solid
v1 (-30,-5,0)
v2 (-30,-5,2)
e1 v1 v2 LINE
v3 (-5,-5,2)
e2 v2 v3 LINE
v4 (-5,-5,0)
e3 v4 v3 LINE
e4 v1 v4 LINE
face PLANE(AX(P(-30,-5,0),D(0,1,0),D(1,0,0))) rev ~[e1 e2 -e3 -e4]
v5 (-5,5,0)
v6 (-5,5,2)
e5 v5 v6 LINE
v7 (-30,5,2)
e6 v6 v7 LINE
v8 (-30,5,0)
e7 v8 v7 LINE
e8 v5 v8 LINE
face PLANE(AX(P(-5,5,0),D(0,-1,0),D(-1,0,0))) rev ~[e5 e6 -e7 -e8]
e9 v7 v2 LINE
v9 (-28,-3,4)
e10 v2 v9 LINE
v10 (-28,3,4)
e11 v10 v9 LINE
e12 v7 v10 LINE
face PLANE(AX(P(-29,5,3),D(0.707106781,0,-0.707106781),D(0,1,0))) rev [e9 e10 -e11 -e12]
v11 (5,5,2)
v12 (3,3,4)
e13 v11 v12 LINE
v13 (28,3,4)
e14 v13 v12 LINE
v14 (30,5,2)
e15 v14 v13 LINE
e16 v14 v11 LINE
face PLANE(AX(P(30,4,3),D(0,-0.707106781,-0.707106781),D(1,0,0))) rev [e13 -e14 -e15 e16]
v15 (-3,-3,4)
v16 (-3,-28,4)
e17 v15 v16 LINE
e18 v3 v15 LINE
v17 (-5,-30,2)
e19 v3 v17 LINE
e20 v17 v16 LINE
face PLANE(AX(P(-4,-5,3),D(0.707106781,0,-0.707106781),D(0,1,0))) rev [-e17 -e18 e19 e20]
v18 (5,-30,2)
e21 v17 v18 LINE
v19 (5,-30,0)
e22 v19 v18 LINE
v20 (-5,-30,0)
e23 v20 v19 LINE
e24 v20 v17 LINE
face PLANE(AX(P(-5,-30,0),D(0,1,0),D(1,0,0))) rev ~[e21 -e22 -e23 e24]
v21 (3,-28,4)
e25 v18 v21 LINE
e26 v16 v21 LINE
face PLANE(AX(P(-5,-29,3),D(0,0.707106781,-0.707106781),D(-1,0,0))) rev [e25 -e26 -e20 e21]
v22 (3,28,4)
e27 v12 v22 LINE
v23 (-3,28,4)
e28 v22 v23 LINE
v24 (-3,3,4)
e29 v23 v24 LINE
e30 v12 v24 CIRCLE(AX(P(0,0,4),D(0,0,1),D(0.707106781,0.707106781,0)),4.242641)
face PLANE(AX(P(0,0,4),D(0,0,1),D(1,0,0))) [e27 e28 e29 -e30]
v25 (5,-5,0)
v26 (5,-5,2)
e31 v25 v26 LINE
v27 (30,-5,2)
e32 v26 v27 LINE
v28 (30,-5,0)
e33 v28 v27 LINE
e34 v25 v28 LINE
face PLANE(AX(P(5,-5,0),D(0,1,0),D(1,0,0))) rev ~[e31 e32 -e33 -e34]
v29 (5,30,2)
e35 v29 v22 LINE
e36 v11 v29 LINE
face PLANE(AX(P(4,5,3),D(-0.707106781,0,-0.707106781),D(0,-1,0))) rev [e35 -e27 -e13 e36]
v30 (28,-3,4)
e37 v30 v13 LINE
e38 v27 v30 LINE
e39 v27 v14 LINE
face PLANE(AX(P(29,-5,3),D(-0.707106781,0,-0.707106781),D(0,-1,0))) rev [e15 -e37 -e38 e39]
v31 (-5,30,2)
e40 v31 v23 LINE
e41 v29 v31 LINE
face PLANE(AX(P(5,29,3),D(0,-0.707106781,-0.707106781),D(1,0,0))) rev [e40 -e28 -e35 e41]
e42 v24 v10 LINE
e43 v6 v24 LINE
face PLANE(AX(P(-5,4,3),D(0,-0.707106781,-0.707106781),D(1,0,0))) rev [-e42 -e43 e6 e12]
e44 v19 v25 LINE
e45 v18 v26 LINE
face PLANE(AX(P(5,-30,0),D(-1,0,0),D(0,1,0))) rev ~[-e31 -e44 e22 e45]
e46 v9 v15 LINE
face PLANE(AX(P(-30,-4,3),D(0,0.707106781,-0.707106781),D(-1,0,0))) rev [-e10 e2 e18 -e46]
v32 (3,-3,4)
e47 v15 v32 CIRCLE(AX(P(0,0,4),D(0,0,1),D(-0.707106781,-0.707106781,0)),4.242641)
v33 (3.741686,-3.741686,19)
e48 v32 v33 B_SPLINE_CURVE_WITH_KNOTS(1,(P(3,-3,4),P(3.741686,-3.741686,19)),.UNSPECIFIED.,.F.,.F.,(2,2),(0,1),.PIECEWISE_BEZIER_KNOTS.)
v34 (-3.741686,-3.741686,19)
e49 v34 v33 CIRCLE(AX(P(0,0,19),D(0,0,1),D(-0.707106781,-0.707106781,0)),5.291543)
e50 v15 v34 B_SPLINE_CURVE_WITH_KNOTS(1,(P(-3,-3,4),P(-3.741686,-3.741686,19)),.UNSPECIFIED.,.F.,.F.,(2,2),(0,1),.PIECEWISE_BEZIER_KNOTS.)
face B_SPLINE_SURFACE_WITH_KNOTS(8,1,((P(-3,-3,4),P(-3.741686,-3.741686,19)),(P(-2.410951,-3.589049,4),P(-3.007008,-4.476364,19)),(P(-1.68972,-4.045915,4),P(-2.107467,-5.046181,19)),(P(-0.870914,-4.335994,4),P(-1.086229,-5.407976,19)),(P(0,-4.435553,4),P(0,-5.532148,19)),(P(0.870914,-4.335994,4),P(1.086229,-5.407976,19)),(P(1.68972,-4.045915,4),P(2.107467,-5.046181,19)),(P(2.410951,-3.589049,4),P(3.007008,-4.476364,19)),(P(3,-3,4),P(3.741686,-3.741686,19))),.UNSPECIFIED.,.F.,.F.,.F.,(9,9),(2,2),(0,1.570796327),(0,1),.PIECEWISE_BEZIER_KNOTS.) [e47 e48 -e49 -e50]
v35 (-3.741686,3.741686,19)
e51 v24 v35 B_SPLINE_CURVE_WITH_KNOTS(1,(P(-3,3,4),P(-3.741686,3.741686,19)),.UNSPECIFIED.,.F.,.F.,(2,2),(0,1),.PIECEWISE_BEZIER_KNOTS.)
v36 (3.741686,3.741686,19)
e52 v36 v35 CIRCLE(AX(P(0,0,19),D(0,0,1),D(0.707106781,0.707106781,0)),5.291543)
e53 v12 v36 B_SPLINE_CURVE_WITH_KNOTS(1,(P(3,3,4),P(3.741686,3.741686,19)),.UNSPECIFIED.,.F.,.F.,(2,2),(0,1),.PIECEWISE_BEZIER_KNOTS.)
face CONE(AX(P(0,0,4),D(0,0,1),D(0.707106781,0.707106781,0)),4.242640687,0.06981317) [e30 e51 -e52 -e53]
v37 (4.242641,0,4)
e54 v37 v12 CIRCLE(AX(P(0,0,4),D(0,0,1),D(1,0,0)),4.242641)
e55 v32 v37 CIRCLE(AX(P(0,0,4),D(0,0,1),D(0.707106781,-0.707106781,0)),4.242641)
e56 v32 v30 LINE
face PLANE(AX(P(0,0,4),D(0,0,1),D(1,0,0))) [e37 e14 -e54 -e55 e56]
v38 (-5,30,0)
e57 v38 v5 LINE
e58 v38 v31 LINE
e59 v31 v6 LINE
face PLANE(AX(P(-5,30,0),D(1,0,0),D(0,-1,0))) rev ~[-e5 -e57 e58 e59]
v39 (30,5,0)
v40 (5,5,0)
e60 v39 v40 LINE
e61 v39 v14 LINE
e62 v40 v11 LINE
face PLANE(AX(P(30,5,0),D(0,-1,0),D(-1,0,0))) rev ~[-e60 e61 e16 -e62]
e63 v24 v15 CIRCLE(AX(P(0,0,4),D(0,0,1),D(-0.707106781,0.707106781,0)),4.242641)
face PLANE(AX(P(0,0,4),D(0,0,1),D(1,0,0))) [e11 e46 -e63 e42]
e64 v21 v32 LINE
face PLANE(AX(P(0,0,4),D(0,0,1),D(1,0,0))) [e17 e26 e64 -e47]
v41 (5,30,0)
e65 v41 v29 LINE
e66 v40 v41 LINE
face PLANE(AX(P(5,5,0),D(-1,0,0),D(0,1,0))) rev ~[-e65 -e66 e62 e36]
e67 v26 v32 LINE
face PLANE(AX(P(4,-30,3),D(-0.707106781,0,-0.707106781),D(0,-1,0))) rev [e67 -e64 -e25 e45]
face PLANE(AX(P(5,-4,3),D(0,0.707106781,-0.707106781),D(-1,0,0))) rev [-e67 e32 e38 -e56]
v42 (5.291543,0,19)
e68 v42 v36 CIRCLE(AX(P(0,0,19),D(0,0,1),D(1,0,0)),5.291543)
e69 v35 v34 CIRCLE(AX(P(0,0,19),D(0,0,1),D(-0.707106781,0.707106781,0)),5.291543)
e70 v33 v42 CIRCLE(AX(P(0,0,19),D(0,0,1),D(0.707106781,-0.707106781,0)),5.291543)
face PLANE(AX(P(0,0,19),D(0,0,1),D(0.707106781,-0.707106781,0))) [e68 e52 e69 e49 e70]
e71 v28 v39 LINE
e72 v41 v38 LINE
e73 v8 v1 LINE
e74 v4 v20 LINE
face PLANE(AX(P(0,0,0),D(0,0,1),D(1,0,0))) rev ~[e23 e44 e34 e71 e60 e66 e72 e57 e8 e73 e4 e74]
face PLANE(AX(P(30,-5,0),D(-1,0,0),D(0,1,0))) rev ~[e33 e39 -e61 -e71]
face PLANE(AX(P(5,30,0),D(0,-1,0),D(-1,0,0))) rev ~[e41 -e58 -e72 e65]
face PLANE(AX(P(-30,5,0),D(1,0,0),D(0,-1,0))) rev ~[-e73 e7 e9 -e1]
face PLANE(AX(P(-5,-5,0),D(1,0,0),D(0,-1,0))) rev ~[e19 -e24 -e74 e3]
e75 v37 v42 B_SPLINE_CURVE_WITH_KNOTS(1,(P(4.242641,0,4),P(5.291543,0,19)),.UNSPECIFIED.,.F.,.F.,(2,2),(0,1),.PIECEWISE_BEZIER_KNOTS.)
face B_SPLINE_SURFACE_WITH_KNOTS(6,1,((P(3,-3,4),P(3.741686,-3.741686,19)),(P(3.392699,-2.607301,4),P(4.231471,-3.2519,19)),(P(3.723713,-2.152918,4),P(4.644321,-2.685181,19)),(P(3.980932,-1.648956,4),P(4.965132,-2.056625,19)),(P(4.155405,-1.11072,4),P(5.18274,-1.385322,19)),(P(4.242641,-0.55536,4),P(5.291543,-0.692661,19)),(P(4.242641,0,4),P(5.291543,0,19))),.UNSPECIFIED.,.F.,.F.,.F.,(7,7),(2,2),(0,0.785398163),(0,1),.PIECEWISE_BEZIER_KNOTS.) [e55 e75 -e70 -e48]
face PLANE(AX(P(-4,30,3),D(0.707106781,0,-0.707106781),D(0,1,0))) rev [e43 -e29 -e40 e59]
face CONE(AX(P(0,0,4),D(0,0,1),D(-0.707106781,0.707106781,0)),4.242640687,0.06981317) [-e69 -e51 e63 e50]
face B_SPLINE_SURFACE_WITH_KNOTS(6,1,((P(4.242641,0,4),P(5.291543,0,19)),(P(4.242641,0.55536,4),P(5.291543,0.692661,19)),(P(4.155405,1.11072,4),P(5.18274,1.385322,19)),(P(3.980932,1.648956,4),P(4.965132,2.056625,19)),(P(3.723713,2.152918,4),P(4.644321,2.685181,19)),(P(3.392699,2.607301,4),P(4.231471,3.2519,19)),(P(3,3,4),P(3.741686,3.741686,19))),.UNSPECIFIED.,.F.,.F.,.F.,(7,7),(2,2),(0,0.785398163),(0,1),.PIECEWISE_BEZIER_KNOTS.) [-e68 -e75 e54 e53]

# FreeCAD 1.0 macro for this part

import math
import FreeCAD as App
import Part
import Sketcher

V = App.Vector
Q = App.Units.Quantity


def edges_at(feature, points):
    """Names of the edges that pass closest to the given points."""
    edges = feature.Shape.Edges
    near = lambda p: min(range(len(edges)), key=lambda i: edges[i].distToShape(Part.Vertex(*p))[0])
    return sorted({f"Edge{near(p) + 1}" for p in points})


def add_polygon(sketch, points):
    """Adds a closed chain of lines whose ends are joined by coincident constraints."""
    first, n = sketch.GeometryCount, len(points)
    for a, b in zip(points, points[1:] + points[:1]):
        sketch.addGeometry(Part.LineSegment(App.Vector(*a, 0), App.Vector(*b, 0)), False)
    for i in range(n):
        sketch.addConstraint(Sketcher.Constraint("Coincident", first + i, 2, first + (i + 1) % n, 1))

doc = App.newDocument("Part")
body = doc.addObject("PartDesign::Body", "Body")

# Sketch on XY plane
sketch1 = doc.addObject("Sketcher::SketchObject", "Sketch")
body.addObject(sketch1)
sketch1.AttachmentSupport = (doc.XY_Plane, [""])
sketch1.MapMode = "FlatFace"
add_polygon(sketch1, [(5, -30), (5, -5), (30, -5), (30, 5), (5, 5), (5, 30), (-5, 30), (-5, 5), (-30, 5), (-30, -5), (-5, -5), (-5, -30)])  # lines 0-11
sketch1.addConstraint([
    Sketcher.Constraint("Vertical", 0),
    Sketcher.Constraint("Horizontal", 1),
    Sketcher.Constraint("Vertical", 2),
    Sketcher.Constraint("Horizontal", 3),
    Sketcher.Constraint("Vertical", 4),
    Sketcher.Constraint("Horizontal", 5),
    Sketcher.Constraint("Vertical", 6),
    Sketcher.Constraint("Horizontal", 7),
    Sketcher.Constraint("Vertical", 8),
    Sketcher.Constraint("Horizontal", 9),
    Sketcher.Constraint("Vertical", 10),
    Sketcher.Constraint("Horizontal", 11),
    Sketcher.Constraint("Symmetric", 0, 2, 6, 2, -1, 1),
    Sketcher.Constraint("Symmetric", 2, 2, 8, 2, -1, 1),
    Sketcher.Constraint("Symmetric", 4, 2, 10, 2, -1, 1),
    Sketcher.Constraint("Symmetric", 3, 2, 6, 2, -2),
    Sketcher.Constraint("Equal", 9, 0),
    Sketcher.Constraint("Equal", 11, 2),
    Sketcher.Constraint("DistanceX", 1, 1, 1, 2, Q("25 mm")),
    Sketcher.Constraint("DistanceX", 5, 2, 5, 1, Q("10 mm")),
])
pad1 = doc.addObject("PartDesign::Pad", "Pad")
body.addObject(pad1)
pad1.Profile = sketch1
pad1.Length = 4
doc.recompute()

chamfer = doc.addObject("PartDesign::Chamfer", "Chamfer")
body.addObject(chamfer)
chamfer.Base = (pad1, edges_at(pad1, [
    (-5, 17.5, 4),
    (0, 30, 4),
    (5, 17.5, 4),
    (-17.5, 5, 4),
    (-17.5, -5, 4),
    (-30, 0, 4),
    (-5, -17.5, 4),
    (0, -30, 4),
    (5, -17.5, 4),
    (17.5, -5, 4),
    (17.5, 5, 4),
    (30, 0, 4),
]))
chamfer.Size = 2

# Sketch on XY plane
sketch2 = doc.addObject("Sketcher::SketchObject", "Sketch001")
body.addObject(sketch2)
sketch2.AttachmentSupport = (doc.XY_Plane, [""])
sketch2.MapMode = "FlatFace"
sketch2.AttachmentOffset = App.Placement(V(0, 0, 4), App.Rotation())
sketch2.addGeometry([
    Part.ArcOfCircle(Part.Circle(V(0, 0, 0), V(0, 0, 1), 4.2), math.radians(-45), math.radians(0)),  # 0
    Part.ArcOfCircle(Part.Circle(V(0, 0, 0), V(0, 0, 1), 4.2), math.radians(0), math.radians(45)),  # 1
    Part.ArcOfCircle(Part.Circle(V(0, 0, 0), V(0, 0, 1), 4.2), math.radians(45), math.radians(135)),  # 2
    Part.ArcOfCircle(Part.Circle(V(0, 0, 0), V(0, 0, 1), 4.2), math.radians(135), math.radians(225)),  # 3
    Part.ArcOfCircle(Part.Circle(V(0, 0, 0), V(0, 0, 1), 4.2), math.radians(-135), math.radians(-45)),  # 4
], False)
sketch2.addConstraint([
    Sketcher.Constraint("Tangent", 0, 2, 1, 1),
    Sketcher.Constraint("Tangent", 1, 2, 2, 1),
    Sketcher.Constraint("Tangent", 2, 2, 3, 1),
    Sketcher.Constraint("Tangent", 3, 2, 4, 1),
    Sketcher.Constraint("Tangent", 4, 2, 0, 1),
    Sketcher.Constraint("Coincident", 0, 3, -1, 1),
    Sketcher.Constraint("Coincident", 2, 3, -1, 1),
    Sketcher.Constraint("PointOnObject", 0, 2, -1),
    Sketcher.Constraint("Horizontal", 1, 2, 2, 2),
    Sketcher.Constraint("Horizontal", 3, 2, 4, 2),
    Sketcher.Constraint("Vertical", 2, 2, 3, 2),
    Sketcher.Constraint("DistanceX", -1, 1, 1, 2, Q("3 mm")),
    Sketcher.Constraint("DistanceY", -1, 1, 1, 2, Q("3 mm")),
])
pad2 = doc.addObject("PartDesign::Pad", "Pad001")
body.addObject(pad2)
pad2.Profile = sketch2
pad2.Length = 15
pad2.TaperAngle = 4

doc.recompute()
